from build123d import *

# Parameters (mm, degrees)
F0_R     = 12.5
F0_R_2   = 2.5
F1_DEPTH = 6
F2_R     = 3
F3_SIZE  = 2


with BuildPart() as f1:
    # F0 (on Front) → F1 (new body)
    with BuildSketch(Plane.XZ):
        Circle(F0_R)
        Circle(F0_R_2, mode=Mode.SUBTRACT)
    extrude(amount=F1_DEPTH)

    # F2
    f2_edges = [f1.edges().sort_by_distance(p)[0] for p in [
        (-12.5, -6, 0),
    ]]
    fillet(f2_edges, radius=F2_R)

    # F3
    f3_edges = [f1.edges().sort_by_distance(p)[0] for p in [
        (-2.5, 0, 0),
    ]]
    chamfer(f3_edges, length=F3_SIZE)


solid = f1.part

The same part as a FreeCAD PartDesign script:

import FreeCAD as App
import Part
import Sketcher
Q = App.Units.Quantity


def edges_at(feature, points):
    """Names of the edges that pass closest to the given points."""
    edges = feature.Shape.Edges
    near = lambda p: min(range(len(edges)), key=lambda i: edges[i].distToShape(Part.Vertex(*p))[0])
    return sorted({f"Edge{near(p) + 1}" for p in points})

doc = App.newDocument("Part")
params = doc.addObject("Spreadsheet::Sheet", "Params")
for row, (alias, value) in enumerate([
    ("sketch1_diameter", "25 mm"),
    ("sketch1_diameter2", "5 mm"),
    ("pad1_length", "6 mm"),
    ("fillet_radius", "3 mm"),
    ("chamfer_size", "2 mm"),
], start=1):
    params.set(f"A{row}", alias)
    params.set(f"B{row}", "=" + value)
    params.setAlias(f"B{row}", alias)

body = doc.addObject("PartDesign::Body", "Body")

# Sketch on XZ plane
sketch1 = body.newObject("Sketcher::SketchObject", "Sketch")
sketch1.AttachmentSupport = (doc.getObject("XZ_Plane"), [""])
sketch1.MapMode = "FlatFace"
sketch1.addGeometry(Part.Circle(App.Vector(0, 0, 0), App.Vector(0, 0, 1), 12.5), False)
sketch1.addGeometry(Part.Circle(App.Vector(0, 0, 0), App.Vector(0, 0, 1), 2.5), False)
sketch1.addConstraint(Sketcher.Constraint("Coincident", 0, 3, -1, 1))
sketch1.addConstraint(Sketcher.Constraint("Coincident", 1, 3, -1, 1))
sketch1.addConstraint(Sketcher.Constraint("Diameter", 0, Q("25 mm")))
sketch1.addConstraint(Sketcher.Constraint("Diameter", 1, Q("5 mm")))
sketch1.setExpression("Constraints[2]", "Params.sketch1_diameter")
sketch1.setExpression("Constraints[3]", "Params.sketch1_diameter2")
pad1 = body.newObject("PartDesign::Pad", "Pad")
pad1.Profile = sketch1
pad1.setExpression("Length", "Params.pad1_length")
doc.recompute()

fillet = body.newObject("PartDesign::Fillet", "Fillet")
fillet.Base = (pad1, edges_at(pad1, [(-12.5, -6, 0)]))
fillet.setExpression("Radius", "Params.fillet_radius")
doc.recompute()

chamfer = body.newObject("PartDesign::Chamfer", "Chamfer")
chamfer.Base = (fillet, edges_at(fillet, [(-2.5, 0, 0)]))
chamfer.setExpression("Size", "Params.chamfer_size")

doc.recompute()
